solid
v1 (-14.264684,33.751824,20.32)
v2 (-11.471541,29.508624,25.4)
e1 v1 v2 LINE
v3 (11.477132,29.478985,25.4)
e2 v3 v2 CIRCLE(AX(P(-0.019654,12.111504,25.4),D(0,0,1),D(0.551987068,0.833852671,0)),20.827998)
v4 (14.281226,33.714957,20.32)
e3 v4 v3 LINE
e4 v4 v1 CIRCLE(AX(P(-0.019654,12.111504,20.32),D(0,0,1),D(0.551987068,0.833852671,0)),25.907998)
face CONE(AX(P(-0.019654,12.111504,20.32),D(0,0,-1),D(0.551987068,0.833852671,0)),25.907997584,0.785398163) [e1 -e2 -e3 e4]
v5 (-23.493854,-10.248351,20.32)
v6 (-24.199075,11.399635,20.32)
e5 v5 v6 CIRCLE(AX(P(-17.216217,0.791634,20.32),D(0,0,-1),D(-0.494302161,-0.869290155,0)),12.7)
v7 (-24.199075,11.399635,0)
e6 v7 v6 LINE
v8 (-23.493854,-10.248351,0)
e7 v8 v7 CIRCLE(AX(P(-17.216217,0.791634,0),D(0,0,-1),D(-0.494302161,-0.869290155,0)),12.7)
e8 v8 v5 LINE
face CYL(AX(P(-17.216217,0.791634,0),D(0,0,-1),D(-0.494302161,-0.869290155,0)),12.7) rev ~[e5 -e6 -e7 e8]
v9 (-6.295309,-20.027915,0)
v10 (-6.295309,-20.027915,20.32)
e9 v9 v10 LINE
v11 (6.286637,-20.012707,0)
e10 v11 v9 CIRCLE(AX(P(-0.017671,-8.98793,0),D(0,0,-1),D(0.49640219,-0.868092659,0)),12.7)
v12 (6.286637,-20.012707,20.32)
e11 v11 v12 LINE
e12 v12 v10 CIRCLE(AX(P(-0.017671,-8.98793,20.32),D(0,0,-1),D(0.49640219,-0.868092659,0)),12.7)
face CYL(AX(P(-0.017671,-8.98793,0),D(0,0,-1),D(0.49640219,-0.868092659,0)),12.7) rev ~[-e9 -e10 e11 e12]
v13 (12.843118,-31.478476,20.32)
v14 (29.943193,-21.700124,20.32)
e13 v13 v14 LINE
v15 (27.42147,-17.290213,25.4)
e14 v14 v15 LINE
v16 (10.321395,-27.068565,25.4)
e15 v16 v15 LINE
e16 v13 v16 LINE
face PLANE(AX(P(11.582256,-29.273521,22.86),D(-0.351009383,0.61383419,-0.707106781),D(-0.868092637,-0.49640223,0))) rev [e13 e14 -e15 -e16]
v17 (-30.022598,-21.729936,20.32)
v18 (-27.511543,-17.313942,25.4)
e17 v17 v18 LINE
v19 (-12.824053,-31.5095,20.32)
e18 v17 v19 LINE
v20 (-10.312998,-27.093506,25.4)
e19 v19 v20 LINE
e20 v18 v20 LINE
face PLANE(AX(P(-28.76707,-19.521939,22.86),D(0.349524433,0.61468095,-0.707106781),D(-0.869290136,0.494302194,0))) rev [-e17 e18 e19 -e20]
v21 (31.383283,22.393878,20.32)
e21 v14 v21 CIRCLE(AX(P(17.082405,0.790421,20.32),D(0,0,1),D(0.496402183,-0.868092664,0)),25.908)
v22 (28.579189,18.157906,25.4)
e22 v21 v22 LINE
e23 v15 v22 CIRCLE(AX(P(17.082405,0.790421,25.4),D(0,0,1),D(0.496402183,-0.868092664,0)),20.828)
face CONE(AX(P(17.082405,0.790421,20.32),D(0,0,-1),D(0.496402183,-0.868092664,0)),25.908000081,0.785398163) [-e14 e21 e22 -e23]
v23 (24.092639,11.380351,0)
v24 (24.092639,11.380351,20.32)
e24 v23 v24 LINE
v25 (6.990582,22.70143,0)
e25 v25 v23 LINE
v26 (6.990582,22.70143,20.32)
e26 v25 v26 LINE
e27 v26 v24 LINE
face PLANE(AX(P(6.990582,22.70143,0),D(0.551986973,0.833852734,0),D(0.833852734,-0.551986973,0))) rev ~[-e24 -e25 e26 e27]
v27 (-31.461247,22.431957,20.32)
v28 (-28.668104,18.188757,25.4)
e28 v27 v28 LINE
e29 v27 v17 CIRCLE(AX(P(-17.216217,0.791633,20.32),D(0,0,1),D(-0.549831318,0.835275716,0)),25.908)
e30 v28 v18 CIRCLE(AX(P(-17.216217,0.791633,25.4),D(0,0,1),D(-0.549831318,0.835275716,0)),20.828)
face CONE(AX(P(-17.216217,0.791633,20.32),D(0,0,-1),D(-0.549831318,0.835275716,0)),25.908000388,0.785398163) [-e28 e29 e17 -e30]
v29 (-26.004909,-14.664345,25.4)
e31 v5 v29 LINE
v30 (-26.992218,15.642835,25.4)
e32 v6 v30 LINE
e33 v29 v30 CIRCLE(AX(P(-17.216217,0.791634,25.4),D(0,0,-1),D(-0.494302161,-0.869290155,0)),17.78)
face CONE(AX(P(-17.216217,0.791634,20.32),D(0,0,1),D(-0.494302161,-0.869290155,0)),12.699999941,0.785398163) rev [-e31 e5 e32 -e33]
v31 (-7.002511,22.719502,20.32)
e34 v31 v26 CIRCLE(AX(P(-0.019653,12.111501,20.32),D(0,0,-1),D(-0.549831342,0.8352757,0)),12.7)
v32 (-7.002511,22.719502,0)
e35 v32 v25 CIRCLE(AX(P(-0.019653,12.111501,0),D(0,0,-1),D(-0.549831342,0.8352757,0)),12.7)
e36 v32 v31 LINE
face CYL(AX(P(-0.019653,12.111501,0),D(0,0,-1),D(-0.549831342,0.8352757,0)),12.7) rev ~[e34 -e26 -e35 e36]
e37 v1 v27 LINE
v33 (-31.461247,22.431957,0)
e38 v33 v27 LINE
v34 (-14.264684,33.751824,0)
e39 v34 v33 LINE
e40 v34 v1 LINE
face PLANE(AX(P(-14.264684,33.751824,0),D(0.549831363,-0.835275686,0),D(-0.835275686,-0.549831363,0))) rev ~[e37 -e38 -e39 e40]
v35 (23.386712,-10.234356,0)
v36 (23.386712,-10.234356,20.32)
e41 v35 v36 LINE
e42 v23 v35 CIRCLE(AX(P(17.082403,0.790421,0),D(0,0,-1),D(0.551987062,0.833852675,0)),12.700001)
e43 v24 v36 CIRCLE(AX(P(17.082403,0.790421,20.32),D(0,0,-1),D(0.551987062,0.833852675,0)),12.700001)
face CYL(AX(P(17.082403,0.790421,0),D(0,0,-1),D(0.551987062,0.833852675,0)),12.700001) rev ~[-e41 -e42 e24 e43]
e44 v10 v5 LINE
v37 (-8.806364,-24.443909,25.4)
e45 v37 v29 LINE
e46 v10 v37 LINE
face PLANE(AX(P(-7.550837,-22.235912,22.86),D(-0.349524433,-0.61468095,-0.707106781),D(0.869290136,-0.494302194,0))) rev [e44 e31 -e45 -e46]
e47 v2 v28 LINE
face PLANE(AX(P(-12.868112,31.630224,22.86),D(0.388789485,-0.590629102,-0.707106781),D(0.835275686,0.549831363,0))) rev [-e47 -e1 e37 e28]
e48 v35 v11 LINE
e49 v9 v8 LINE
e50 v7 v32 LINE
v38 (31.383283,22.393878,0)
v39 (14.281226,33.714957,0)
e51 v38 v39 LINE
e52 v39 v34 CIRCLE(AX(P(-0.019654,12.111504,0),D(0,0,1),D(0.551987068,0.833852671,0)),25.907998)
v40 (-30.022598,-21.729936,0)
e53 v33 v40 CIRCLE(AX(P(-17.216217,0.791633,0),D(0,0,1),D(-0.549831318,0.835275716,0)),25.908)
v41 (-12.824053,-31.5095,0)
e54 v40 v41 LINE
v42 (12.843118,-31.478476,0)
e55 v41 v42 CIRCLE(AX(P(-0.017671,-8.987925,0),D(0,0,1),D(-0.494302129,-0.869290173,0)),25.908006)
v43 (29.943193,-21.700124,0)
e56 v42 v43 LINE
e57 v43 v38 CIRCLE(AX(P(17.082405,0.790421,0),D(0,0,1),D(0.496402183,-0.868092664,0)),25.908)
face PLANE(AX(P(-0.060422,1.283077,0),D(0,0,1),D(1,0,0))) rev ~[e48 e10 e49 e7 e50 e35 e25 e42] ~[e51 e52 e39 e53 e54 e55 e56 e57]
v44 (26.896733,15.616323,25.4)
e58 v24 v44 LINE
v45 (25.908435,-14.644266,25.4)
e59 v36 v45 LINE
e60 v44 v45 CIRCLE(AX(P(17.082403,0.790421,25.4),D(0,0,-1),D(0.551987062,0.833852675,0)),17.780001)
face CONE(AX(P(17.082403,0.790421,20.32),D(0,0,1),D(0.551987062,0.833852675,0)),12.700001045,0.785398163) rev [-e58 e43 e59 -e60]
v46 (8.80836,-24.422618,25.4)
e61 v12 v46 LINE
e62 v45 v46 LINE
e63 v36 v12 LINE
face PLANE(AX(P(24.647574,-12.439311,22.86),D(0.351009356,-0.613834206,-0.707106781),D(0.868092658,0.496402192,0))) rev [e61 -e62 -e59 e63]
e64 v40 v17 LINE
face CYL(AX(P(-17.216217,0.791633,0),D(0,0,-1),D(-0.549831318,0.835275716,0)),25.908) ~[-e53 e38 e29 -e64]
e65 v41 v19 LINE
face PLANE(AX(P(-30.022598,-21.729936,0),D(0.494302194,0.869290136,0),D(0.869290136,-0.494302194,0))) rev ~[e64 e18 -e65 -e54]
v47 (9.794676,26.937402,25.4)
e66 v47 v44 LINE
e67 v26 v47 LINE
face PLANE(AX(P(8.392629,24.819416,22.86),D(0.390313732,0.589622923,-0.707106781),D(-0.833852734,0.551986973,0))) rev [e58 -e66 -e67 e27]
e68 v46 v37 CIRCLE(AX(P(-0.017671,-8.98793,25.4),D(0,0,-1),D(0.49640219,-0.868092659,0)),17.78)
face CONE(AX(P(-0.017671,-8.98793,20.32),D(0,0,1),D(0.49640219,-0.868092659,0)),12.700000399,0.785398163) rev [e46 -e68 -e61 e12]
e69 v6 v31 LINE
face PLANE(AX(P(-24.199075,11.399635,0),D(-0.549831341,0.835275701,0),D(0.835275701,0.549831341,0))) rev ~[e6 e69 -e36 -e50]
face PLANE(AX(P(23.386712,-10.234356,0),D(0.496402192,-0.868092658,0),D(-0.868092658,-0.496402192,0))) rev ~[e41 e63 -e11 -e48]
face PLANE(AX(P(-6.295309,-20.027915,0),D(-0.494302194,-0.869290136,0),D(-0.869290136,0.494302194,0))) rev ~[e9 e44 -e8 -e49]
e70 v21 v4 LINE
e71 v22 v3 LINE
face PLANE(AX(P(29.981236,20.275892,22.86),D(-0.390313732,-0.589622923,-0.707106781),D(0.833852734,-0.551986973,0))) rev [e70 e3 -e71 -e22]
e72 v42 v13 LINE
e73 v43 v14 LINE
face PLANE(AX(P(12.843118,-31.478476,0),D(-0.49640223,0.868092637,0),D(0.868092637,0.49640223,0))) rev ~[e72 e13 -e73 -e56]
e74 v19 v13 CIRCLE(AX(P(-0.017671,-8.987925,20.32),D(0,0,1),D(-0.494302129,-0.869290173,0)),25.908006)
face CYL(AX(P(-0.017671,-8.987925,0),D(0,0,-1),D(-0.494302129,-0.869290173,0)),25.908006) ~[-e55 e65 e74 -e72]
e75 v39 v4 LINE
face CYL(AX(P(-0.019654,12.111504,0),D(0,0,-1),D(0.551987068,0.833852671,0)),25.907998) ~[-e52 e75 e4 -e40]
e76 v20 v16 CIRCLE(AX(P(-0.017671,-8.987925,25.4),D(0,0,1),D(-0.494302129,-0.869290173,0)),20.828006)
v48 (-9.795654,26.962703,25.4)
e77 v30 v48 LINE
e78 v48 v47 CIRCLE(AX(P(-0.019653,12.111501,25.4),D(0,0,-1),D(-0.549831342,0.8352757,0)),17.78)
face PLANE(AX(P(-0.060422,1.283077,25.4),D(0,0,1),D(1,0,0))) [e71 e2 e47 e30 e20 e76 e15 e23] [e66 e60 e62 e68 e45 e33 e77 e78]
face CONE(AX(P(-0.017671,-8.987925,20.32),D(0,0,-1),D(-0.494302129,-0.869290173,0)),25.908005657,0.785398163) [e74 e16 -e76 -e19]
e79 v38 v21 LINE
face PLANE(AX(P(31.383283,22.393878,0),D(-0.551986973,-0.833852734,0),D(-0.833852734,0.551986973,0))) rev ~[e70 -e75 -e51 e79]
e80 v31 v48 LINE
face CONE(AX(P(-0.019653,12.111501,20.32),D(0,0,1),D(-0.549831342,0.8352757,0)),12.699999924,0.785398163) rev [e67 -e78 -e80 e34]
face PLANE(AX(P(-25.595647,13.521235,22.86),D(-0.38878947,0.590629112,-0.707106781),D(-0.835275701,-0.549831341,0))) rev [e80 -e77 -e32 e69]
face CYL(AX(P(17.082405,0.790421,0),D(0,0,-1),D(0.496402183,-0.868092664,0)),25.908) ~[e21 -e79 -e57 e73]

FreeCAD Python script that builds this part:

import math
import FreeCAD as App
import Part
import Sketcher
from FreeCAD import Vector
Q = App.Units.Quantity


def edges_at(feature, points):
    """Names of the edges that pass closest to the given points."""
    edges = feature.Shape.Edges
    near = lambda p: min(range(len(edges)), key=lambda i: edges[i].distToShape(Part.Vertex(*p))[0])
    return sorted({f"Edge{near(p) + 1}" for p in points})

doc = App.newDocument("Part")
body = doc.addObject("PartDesign::Body", "Body")

sketch1 = body.newObject("Sketcher::SketchObject", "Sketch")
sketch1.AttachmentSupport = (doc.getObject("XY_Plane"), [""])
sketch1.MapMode = "FlatFace"
sketch1.addGeometry([
    Part.LineSegment(Vector(-14, 34, 0), Vector(-31, 22, 0)),
    Part.ArcOfCircle(Part.Circle(Vector(-17, 1, 0), Vector(0, 0, 1), 26), math.radians(123), math.radians(240)),
    Part.LineSegment(Vector(-30, -22, 0), Vector(-13, -32, 0)),
    Part.ArcOfCircle(Part.Circle(Vector(0, -9, 0), Vector(0, 0, 1), 26), math.radians(-120), math.radians(-60)),
    Part.LineSegment(Vector(13, -31, 0), Vector(30, -22, 0)),
    Part.ArcOfCircle(Part.Circle(Vector(17, 1, 0), Vector(0, 0, 1), 26), math.radians(-60), math.radians(56)),
    Part.LineSegment(Vector(31, 22, 0), Vector(14, 34, 0)),
    Part.ArcOfCircle(Part.Circle(Vector(0, 12, 0), Vector(0, 0, 1), 26), math.radians(56), math.radians(123)),
    Part.LineSegment(Vector(-6, -20, 0), Vector(-23, -10, 0)),
    Part.ArcOfCircle(Part.Circle(Vector(-17, 1, 0), Vector(0, 0, 1), 13), math.radians(123), math.radians(240)),
    Part.LineSegment(Vector(-24, 11, 0), Vector(-7, 23, 0)),
    Part.ArcOfCircle(Part.Circle(Vector(0, 12, 0), Vector(0, 0, 1), 13), math.radians(56), math.radians(123)),
    Part.LineSegment(Vector(7, 23, 0), Vector(24, 11, 0)),
    Part.ArcOfCircle(Part.Circle(Vector(17, 1, 0), Vector(0, 0, 1), 13), math.radians(-60), math.radians(56)),
    Part.LineSegment(Vector(23, -10, 0), Vector(6, -20, 0)),
    Part.ArcOfCircle(Part.Circle(Vector(0, -9, 0), Vector(0, 0, 1), 13), math.radians(-120), math.radians(-60)),
], False)
sketch1.addConstraint([
    Sketcher.Constraint("Tangent", 0, 2, 1, 1),
    Sketcher.Constraint("Tangent", 1, 2, 2, 1),
    Sketcher.Constraint("Tangent", 2, 2, 3, 1),
    Sketcher.Constraint("Tangent", 3, 2, 4, 1),
    Sketcher.Constraint("Tangent", 4, 2, 5, 1),
    Sketcher.Constraint("Tangent", 5, 2, 6, 1),
    Sketcher.Constraint("Tangent", 6, 2, 7, 1),
    Sketcher.Constraint("Tangent", 7, 2, 0, 1),
    Sketcher.Constraint("Tangent", 8, 2, 9, 2),
    Sketcher.Constraint("Tangent", 9, 1, 10, 1),
    Sketcher.Constraint("Tangent", 10, 2, 11, 2),
    Sketcher.Constraint("Tangent", 11, 1, 12, 1),
    Sketcher.Constraint("Tangent", 12, 2, 13, 2),
    Sketcher.Constraint("Tangent", 13, 1, 14, 1),
    Sketcher.Constraint("Tangent", 14, 2, 15, 2),
    Sketcher.Constraint("Tangent", 15, 1, 8, 1),
    Sketcher.Constraint("Coincident", 9, 3, 1, 3),
    Sketcher.Constraint("Coincident", 11, 3, 7, 3),
    Sketcher.Constraint("Coincident", 13, 3, 5, 3),
    Sketcher.Constraint("Coincident", 15, 3, 3, 3),
    Sketcher.Constraint("Equal", 1, 5),
    Sketcher.Constraint("Equal", 9, 11),
    Sketcher.Constraint("Equal", 11, 13),
    Sketcher.Constraint("Equal", 13, 15),
    Sketcher.Constraint("Parallel", 2, 8),
    Sketcher.Constraint("Parallel", 0, 10),
    Sketcher.Constraint("Radius", 9, Q("0.5 in")),
    Sketcher.Constraint("Radius", 1, Q("1.02 in")),
    Sketcher.Constraint("DistanceY", -1, 1, 11, 3, Q("12.111501 mm")),
    Sketcher.Constraint("DistanceX", 1, 2, -1, 1, Q("30.022598 mm")),
    Sketcher.Constraint("DistanceY", 2, 2, -1, 1, Q("31.5095 mm")),
    Sketcher.Constraint("DistanceY", -1, 1, 10, 2, Q("22.719502 mm")),
    Sketcher.Constraint("DistanceY", 4, 2, 3, 3, Q("12.712199 mm")),
    Sketcher.Constraint("DistanceY", 4, 2, 5, 2, Q("44.094002 mm")),
    Sketcher.Constraint("Distance", 0, Q("20.587889 mm")),
    Sketcher.Constraint("DistanceX", 3, 3, -1, 1, Q("0.017671 mm")),
])
pad1 = body.newObject("PartDesign::Pad", "Pad")
pad1.Profile = sketch1
pad1.Length = Q("1 in")
doc.recompute()

chamfer = body.newObject("PartDesign::Chamfer", "Chamfer")
chamfer.Base = (pad1, edges_at(pad1, [
    (0.014, 38.019, 25.4),
    (-22.863, 28.092, 25.4),
    (-43.11, -0.052, 25.4),
    (-21.423, -26.62, 25.4),
    (0.014, -34.896, 25.4),
    (21.393, -26.589, 25.4),
    (42.977, -0.055, 25.4),
    (22.832, 28.054, 25.4),
    (-0.002, -21.688, 25.4),
    (-14.895, -15.138, 25.4),
    (-29.909, 0.378, 25.4),
    (-15.601, 17.06, 25.4),
    (-0.003, 24.811, 25.4),
    (15.542, 17.041, 25.4),
    (29.776, 0.376, 25.4),
    (14.837, -15.124, 25.4),
]))
chamfer.Size = Q("0.2 in")

doc.recompute()
